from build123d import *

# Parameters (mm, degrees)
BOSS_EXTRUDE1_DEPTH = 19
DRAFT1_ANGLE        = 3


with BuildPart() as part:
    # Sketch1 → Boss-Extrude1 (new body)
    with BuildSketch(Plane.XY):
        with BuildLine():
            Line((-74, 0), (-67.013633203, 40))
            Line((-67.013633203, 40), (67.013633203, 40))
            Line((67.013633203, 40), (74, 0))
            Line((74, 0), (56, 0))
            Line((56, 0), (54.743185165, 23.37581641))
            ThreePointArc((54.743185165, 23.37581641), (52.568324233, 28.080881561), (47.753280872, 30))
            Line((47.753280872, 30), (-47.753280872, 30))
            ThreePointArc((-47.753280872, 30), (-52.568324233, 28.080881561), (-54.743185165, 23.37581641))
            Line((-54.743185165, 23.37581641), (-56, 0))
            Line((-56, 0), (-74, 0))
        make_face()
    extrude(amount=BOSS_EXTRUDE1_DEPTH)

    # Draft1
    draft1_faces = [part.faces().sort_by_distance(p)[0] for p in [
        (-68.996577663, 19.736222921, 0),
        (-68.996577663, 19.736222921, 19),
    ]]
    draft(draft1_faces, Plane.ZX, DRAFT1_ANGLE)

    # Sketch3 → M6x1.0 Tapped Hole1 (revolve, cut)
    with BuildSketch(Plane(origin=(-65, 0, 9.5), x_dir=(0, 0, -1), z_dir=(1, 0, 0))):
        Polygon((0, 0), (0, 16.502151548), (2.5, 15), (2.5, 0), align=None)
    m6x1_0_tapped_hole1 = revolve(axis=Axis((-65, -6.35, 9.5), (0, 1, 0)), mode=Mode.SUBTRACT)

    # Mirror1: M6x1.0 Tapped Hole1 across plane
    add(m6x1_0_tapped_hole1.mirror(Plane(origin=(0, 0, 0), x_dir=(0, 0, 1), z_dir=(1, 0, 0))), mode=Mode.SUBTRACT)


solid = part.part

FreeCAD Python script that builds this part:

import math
import FreeCAD as App
import Part
import Sketcher
Q = App.Units.Quantity


def faces_at(feature, points):
    """Names of the faces that lie closest to the given points."""
    faces = feature.Shape.Faces
    near = lambda p: min(range(len(faces)), key=lambda i: faces[i].distToShape(Part.Vertex(*p))[0])
    return sorted({f"Face{near(p) + 1}" for p in points})


def add_polygon(sketch, points):
    """Adds a closed chain of lines whose ends are joined by coincident constraints."""
    first, n = sketch.GeometryCount, len(points)
    for a, b in zip(points, points[1:] + points[:1]):
        sketch.addGeometry(Part.LineSegment(App.Vector(*a, 0), App.Vector(*b, 0)), False)
    for i in range(n):
        sketch.addConstraint(Sketcher.Constraint("Coincident", first + i, 2, first + (i + 1) % n, 1))

doc = App.newDocument("Part")
body = doc.addObject("PartDesign::Body", "Body")

sketch1 = doc.addObject("Sketcher::SketchObject", "Sketch")
body.addObject(sketch1)
sketch1.AttachmentSupport = (doc.XY_Plane, [""])
sketch1.MapMode = "FlatFace"
sketch1.addGeometry([
    Part.LineSegment(App.Vector(-67.013633, 40, 0), App.Vector(-74, 0, 0)),
    Part.LineSegment(App.Vector(-74, 0, 0), App.Vector(-56, 0, 0)),
    Part.LineSegment(App.Vector(-56, 0, 0), App.Vector(-54.743185, 23.375816, 0)),
    Part.ArcOfCircle(Part.Circle(App.Vector(-47.753281, 23, 0), App.Vector(0, 0, 1), 7), math.radians(90), math.radians(176.922421)),
    Part.LineSegment(App.Vector(-47.753281, 30, 0), App.Vector(47.753281, 30, 0)),
    Part.ArcOfCircle(Part.Circle(App.Vector(47.753281, 23, 0), App.Vector(0, 0, 1), 7), math.radians(3.077579), math.radians(90)),
    Part.LineSegment(App.Vector(54.743185, 23.375816, 0), App.Vector(56, 0, 0)),
    Part.LineSegment(App.Vector(56, 0, 0), App.Vector(74, 0, 0)),
    Part.LineSegment(App.Vector(74, 0, 0), App.Vector(67.013633, 40, 0)),
    Part.LineSegment(App.Vector(67.013633, 40, 0), App.Vector(-67.013633, 40, 0)),
], False)
sketch1.addConstraint([
    Sketcher.Constraint("Coincident", 0, 2, 1, 1),
    Sketcher.Constraint("Coincident", 1, 2, 2, 1),
    Sketcher.Constraint("Tangent", 2, 2, 3, 2),
    Sketcher.Constraint("Tangent", 3, 1, 4, 1),
    Sketcher.Constraint("Tangent", 4, 2, 5, 2),
    Sketcher.Constraint("Tangent", 5, 1, 6, 1),
    Sketcher.Constraint("Coincident", 6, 2, 7, 1),
    Sketcher.Constraint("Coincident", 7, 2, 8, 1),
    Sketcher.Constraint("Coincident", 8, 2, 9, 1),
    Sketcher.Constraint("Coincident", 9, 2, 0, 1),
    Sketcher.Constraint("Horizontal", 1),
    Sketcher.Constraint("Horizontal", 4),
    Sketcher.Constraint("Horizontal", 7),
    Sketcher.Constraint("Horizontal", 9),
    Sketcher.Constraint("Equal", 3, 5),
    Sketcher.Constraint("Symmetric", 1, 2, 6, 2, -1, 1),
    Sketcher.Constraint("Symmetric", 0, 2, 7, 2, -2),
    Sketcher.Constraint("Horizontal", 2, 2, 5, 1),
    Sketcher.Constraint("Equal", 0, 8),
    Sketcher.Constraint("Radius", 3, Q("7 mm")),
    Sketcher.Constraint("DistanceX", 1, 1, 1, 2, Q("18 mm")),
    Sketcher.Constraint("DistanceY", -1, 1, 3, 3, Q("23 mm")),
    Sketcher.Constraint("DistanceX", 0, 2, -1, 1, Q("74 mm")),
    Sketcher.Constraint("DistanceY", -1, 1, 8, 2, Q("40 mm")),
    Sketcher.Constraint("DistanceX", 4, 1, 4, 2, Q("95.506562 mm")),
    Sketcher.Constraint("DistanceX", 9, 2, 9, 1, Q("134.027266 mm")),
])
pad1 = doc.addObject("PartDesign::Pad", "Pad")
body.addObject(pad1)
pad1.Profile = sketch1
pad1.Length = 19
doc.recompute()

draft = doc.addObject("PartDesign::Draft", "Draft")
body.addObject(draft)
draft.Base = (pad1, faces_at(pad1, [(59.2, 20, 0), (59.2, 20, 19)]))
draft.NeutralPlane = (doc.XZ_Plane, [""])
draft.Angle = 3
draft.Reversed = True

sketch2 = doc.addObject("Sketcher::SketchObject", "Sketch001")
body.addObject(sketch2)
sketch2.AttachmentSupport = (doc.YZ_Plane, [""])
sketch2.MapMode = "FlatFace"
sketch2.AttachmentOffset = App.Placement(App.Vector(0, 0, -65), App.Rotation())
add_polygon(sketch2, [(16.502152, 9.5), (0, 9.5), (0, 7), (15, 7)])
sketch2.addGeometry(Part.LineSegment(App.Vector(0, 9.5, 0), App.Vector(16.502152, 9.5, 0)), True)
sketch2.addConstraint([
    Sketcher.Constraint("Horizontal", 0),
    Sketcher.Constraint("Vertical", 1),
    Sketcher.Constraint("Horizontal", 2),
    Sketcher.Constraint("Horizontal", 4),
    Sketcher.Constraint("Coincident", 4, 1, 0, 2),
    Sketcher.Constraint("PointOnObject", 0, 2, -2),
    Sketcher.Constraint("Equal", 0, 4),
    Sketcher.Constraint("DistanceX", 2, 1, 2, 2, Q("15 mm")),
    Sketcher.Constraint("Angle", 3, Q("59 deg")),
    Sketcher.Constraint("DistanceY", 1, 2, 1, 1, Q("2.5 mm")),
    Sketcher.Constraint("DistanceY", -1, 1, 1, 2, Q("7 mm")),
])
groove = doc.addObject("PartDesign::Groove", "Groove")
body.addObject(groove)
groove.Profile = sketch2
groove.ReferenceAxis = (sketch2, ["Axis0"])
groove.Angle = 360
doc.recompute()

mirrored = doc.addObject("PartDesign::Mirrored", "Mirrored")
body.addObject(mirrored)
mirrored.Originals = [groove]
mirrored.MirrorPlane = (doc.YZ_Plane, [""])
body.Tip = mirrored

doc.recompute()
